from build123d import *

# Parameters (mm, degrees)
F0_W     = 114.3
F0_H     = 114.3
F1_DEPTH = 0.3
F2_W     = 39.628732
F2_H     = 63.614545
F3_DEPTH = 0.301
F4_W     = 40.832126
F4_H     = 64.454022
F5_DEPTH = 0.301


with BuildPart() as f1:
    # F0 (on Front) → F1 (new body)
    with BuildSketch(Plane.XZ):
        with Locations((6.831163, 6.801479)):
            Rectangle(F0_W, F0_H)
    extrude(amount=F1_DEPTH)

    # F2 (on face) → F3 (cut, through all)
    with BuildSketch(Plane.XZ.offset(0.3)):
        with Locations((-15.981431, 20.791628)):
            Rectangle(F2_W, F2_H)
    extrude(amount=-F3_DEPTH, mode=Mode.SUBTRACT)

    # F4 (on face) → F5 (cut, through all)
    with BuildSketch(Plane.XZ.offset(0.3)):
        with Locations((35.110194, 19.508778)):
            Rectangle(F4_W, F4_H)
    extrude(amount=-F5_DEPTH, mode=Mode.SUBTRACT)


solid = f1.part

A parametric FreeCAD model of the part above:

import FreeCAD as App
import Part
import Sketcher
Q = App.Units.Quantity


def add_polygon(sketch, points):
    """Adds a closed chain of lines whose ends are joined by coincident constraints."""
    first, n = sketch.GeometryCount, len(points)
    for a, b in zip(points, points[1:] + points[:1]):
        sketch.addGeometry(Part.LineSegment(App.Vector(*a, 0), App.Vector(*b, 0)), False)
    for i in range(n):
        sketch.addConstraint(Sketcher.Constraint("Coincident", first + i, 2, first + (i + 1) % n, 1))

doc = App.newDocument("Part")
params = doc.addObject("Spreadsheet::Sheet", "Params")
for row, (alias, value) in enumerate([
    ("sketch1_width", "114.3 mm"),
    ("pad1_length", "0.3 mm"),
], start=1):
    params.set(f"A{row}", alias)
    params.set(f"B{row}", "=" + value)
    params.setAlias(f"B{row}", alias)

body = doc.addObject("PartDesign::Body", "Body")

sketch1 = body.newObject("Sketcher::SketchObject", "Sketch")
sketch1.AttachmentSupport = (doc.getObject("XZ_Plane"), [""])
sketch1.MapMode = "FlatFace"
add_polygon(sketch1, [(-50, 64), (-50, -50), (64, -50), (64, 64)])
sketch1.addConstraint(Sketcher.Constraint("Vertical", 0))
sketch1.addConstraint(Sketcher.Constraint("Horizontal", 1))
sketch1.addConstraint(Sketcher.Constraint("Vertical", 2))
sketch1.addConstraint(Sketcher.Constraint("Horizontal", 3))
sketch1.addConstraint(Sketcher.Constraint("Equal", 3, 0))
sketch1.addConstraint(Sketcher.Constraint("DistanceX", 1, 1, 1, 2, Q("114.3 mm")))
sketch1.addConstraint(Sketcher.Constraint("DistanceY", 0, 2, -1, 1, Q("50.348521 mm")))
sketch1.addConstraint(Sketcher.Constraint("DistanceX", 0, 2, -1, 1, Q("50.318837 mm")))
sketch1.setExpression("Constraints[9]", "Params.sketch1_width")
pad1 = body.newObject("PartDesign::Pad", "Pad")
pad1.Profile = sketch1
pad1.setExpression("Length", "Params.pad1_length")

sketch2 = body.newObject("Sketcher::SketchObject", "Sketch001")
sketch2.AttachmentSupport = (doc.getObject("XZ_Plane"), [""])
sketch2.MapMode = "FlatFace"
sketch2.AttachmentOffset = App.Placement(App.Vector(0, 0, 0.3), App.Rotation())
add_polygon(sketch2, [(-36, 53), (-36, -11), (4, -11), (4, 53)])
sketch2.addConstraint(Sketcher.Constraint("Vertical", 0))
sketch2.addConstraint(Sketcher.Constraint("Horizontal", 1))
sketch2.addConstraint(Sketcher.Constraint("Vertical", 2))
sketch2.addConstraint(Sketcher.Constraint("Horizontal", 3))
sketch2.addConstraint(Sketcher.Constraint("DistanceY", -1, 1, 2, 2, Q("52.5989 mm")))
sketch2.addConstraint(Sketcher.Constraint("DistanceX", 1, 1, 1, 2, Q("39.628732 mm")))
sketch2.addConstraint(Sketcher.Constraint("DistanceY", 0, 2, 0, 1, Q("63.614545 mm")))
sketch2.addConstraint(Sketcher.Constraint("DistanceX", 0, 2, -1, 1, Q("35.795797 mm")))
pocket1 = body.newObject("PartDesign::Pocket", "Pocket")
pocket1.Profile = sketch2
pocket1.Type = "ThroughAll"

sketch3 = body.newObject("Sketcher::SketchObject", "Sketch002")
sketch3.AttachmentSupport = (doc.getObject("XZ_Plane"), [""])
sketch3.MapMode = "FlatFace"
sketch3.AttachmentOffset = App.Placement(App.Vector(0, 0, 0.3), App.Rotation())
add_polygon(sketch3, [(15, 52), (15, -13), (56, -13), (56, 52)])
sketch3.addConstraint(Sketcher.Constraint("Vertical", 0))
sketch3.addConstraint(Sketcher.Constraint("Horizontal", 1))
sketch3.addConstraint(Sketcher.Constraint("Vertical", 2))
sketch3.addConstraint(Sketcher.Constraint("Horizontal", 3))
sketch3.addConstraint(Sketcher.Constraint("DistanceY", 0, 2, 0, 1, Q("64.454022 mm")))
sketch3.addConstraint(Sketcher.Constraint("DistanceX", 1, 1, 1, 2, Q("40.832126 mm")))
sketch3.addConstraint(Sketcher.Constraint("DistanceX", -1, 1, 0, 2, Q("14.694131 mm")))
sketch3.addConstraint(Sketcher.Constraint("DistanceY", -1, 1, 2, 2, Q("51.735789 mm")))
pocket2 = body.newObject("PartDesign::Pocket", "Pocket001")
pocket2.Profile = sketch3
pocket2.Type = "ThroughAll"

doc.recompute()
